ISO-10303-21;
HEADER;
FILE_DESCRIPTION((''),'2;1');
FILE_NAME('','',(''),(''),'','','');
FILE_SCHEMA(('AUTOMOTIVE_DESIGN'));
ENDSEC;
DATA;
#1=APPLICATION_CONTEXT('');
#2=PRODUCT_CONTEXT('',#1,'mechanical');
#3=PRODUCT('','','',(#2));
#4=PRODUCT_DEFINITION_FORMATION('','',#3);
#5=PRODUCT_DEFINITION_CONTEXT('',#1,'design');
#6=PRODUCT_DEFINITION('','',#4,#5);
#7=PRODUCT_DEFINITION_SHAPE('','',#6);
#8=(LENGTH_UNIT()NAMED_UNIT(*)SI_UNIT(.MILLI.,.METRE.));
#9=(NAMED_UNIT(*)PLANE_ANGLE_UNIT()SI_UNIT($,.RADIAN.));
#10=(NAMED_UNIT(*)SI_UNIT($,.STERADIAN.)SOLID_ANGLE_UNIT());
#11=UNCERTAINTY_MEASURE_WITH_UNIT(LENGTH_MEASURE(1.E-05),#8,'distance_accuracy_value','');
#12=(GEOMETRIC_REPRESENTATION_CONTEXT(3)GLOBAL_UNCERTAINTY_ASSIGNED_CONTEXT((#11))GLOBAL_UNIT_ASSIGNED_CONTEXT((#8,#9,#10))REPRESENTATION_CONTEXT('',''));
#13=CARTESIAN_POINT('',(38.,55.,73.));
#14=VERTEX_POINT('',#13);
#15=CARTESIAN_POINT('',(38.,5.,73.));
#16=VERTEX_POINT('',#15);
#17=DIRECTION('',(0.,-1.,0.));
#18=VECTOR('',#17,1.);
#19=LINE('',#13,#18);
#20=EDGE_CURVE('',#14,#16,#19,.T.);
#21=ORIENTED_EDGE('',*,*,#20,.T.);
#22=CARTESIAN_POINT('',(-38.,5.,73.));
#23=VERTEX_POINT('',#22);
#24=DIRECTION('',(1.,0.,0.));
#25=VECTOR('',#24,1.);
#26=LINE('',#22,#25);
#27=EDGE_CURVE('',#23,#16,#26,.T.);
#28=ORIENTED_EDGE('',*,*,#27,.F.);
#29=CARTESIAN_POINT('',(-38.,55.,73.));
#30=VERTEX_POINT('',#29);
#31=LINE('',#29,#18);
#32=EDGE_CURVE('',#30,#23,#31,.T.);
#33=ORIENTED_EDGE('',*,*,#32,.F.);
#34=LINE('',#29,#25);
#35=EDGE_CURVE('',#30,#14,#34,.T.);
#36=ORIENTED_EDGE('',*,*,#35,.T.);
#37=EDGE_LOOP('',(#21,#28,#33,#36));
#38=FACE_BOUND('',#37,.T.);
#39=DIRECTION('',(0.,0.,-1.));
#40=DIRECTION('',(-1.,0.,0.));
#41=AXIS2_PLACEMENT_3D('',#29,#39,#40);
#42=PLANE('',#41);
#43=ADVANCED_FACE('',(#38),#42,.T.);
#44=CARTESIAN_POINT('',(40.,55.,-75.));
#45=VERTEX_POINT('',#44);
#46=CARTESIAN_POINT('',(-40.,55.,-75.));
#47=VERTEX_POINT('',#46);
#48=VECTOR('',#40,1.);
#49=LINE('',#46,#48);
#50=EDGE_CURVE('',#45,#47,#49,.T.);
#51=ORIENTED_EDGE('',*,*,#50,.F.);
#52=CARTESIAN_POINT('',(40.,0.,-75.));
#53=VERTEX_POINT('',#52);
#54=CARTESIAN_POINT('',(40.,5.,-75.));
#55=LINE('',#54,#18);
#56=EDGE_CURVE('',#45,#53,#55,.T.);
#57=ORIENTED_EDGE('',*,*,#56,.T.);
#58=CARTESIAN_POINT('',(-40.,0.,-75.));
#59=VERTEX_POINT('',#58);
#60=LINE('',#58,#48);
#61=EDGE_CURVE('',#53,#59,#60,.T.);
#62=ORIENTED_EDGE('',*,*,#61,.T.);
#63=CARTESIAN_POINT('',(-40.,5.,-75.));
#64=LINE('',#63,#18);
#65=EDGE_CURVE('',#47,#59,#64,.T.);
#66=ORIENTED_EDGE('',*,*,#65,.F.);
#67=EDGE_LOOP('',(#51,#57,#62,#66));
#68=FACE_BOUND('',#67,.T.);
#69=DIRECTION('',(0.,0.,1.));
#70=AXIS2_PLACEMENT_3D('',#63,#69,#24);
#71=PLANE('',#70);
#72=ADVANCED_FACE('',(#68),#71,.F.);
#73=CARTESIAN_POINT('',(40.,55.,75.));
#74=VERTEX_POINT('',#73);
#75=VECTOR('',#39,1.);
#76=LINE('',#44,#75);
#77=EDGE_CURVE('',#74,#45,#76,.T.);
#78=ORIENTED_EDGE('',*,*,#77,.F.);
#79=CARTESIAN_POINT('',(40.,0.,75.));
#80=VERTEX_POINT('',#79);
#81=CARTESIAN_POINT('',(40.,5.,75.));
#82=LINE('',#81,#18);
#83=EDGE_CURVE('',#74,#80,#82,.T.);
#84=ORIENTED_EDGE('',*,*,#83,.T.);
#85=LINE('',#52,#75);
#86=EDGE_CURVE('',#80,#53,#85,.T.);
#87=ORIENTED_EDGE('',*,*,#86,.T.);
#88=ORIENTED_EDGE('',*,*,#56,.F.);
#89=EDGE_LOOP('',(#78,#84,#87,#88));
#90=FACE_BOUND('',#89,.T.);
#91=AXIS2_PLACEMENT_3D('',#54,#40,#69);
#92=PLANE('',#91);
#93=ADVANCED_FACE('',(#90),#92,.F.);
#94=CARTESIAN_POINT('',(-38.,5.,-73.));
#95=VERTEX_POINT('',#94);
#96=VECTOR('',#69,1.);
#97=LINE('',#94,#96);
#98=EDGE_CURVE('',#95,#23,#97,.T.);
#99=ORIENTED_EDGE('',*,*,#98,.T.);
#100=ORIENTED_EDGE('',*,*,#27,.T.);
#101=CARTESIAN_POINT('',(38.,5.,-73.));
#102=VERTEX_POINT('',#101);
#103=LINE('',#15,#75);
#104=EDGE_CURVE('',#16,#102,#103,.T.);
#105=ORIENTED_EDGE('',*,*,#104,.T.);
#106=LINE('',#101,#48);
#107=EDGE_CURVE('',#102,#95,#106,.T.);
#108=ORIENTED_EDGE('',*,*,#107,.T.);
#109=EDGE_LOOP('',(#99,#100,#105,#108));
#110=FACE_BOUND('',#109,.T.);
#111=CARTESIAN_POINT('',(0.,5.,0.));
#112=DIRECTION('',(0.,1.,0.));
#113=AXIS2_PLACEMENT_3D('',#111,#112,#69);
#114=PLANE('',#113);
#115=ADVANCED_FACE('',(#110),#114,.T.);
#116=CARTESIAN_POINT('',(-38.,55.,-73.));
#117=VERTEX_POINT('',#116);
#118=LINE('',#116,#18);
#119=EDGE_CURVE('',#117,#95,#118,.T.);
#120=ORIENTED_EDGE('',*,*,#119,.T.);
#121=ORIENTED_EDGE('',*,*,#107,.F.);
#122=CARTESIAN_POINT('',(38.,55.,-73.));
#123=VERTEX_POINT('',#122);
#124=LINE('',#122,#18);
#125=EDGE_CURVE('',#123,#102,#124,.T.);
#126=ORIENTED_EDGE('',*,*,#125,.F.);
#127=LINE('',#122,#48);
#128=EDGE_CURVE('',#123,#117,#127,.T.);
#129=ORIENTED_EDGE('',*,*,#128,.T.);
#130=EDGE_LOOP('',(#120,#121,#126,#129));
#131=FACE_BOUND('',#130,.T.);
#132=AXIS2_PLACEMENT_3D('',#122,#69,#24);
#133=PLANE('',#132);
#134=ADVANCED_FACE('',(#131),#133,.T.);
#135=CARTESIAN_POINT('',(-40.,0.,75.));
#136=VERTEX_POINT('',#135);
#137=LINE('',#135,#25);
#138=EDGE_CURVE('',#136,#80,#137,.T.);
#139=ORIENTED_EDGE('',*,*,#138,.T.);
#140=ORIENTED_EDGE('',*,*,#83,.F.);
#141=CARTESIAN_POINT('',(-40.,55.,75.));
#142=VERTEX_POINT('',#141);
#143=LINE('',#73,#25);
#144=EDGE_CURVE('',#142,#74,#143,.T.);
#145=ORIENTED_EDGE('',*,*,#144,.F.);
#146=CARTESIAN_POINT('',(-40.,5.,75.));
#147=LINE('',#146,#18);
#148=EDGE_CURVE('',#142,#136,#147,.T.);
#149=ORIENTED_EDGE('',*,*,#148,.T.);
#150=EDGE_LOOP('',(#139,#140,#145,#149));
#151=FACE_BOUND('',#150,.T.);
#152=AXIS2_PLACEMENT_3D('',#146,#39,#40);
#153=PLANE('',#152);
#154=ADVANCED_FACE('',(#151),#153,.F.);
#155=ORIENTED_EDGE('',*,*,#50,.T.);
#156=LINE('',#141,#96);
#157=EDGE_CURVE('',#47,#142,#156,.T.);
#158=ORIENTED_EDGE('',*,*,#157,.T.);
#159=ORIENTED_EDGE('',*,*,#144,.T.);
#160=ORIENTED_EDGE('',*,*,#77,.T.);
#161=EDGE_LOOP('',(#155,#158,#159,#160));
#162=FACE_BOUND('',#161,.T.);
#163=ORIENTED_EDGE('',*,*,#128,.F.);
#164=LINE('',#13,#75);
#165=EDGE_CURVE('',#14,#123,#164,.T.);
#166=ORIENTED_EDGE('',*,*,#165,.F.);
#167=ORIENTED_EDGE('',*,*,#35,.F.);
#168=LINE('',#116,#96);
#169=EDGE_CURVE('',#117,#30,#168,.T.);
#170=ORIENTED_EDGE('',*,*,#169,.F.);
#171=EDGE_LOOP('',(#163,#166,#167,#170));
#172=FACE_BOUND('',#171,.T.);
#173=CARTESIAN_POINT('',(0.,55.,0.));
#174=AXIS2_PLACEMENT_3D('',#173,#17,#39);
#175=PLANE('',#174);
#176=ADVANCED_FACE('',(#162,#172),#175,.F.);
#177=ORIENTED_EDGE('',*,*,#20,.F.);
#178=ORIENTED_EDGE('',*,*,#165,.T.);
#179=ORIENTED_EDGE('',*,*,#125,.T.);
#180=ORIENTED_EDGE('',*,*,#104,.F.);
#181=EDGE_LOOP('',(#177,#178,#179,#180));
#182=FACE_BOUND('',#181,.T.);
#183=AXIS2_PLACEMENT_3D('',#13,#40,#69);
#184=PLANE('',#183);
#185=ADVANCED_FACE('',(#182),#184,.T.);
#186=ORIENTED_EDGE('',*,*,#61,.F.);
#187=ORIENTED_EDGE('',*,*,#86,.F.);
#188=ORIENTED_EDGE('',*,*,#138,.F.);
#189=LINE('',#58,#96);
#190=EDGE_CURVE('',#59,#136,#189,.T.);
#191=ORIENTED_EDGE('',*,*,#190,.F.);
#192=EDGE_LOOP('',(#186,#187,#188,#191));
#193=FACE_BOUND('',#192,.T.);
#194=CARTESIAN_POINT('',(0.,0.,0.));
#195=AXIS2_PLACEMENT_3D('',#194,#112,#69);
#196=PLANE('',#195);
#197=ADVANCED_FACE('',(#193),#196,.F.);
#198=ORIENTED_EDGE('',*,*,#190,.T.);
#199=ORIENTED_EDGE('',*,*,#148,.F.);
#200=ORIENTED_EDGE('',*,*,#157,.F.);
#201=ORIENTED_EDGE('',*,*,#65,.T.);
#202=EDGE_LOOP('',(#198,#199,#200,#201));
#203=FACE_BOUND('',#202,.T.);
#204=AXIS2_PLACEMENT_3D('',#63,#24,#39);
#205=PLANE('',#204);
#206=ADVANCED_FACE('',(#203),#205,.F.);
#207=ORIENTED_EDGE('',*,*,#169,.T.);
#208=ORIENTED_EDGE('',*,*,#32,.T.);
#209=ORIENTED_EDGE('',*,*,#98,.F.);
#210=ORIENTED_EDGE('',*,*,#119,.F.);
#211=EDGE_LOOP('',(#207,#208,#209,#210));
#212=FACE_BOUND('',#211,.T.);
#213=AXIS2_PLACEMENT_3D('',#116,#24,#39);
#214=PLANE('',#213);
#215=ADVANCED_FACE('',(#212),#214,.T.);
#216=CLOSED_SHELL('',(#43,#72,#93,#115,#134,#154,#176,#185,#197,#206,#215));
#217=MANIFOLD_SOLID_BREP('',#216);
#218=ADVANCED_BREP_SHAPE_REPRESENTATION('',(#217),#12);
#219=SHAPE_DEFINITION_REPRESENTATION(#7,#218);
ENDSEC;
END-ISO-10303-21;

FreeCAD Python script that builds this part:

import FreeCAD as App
import Part
import Sketcher
from FreeCAD import Vector
Q = App.Units.Quantity


def add_polygon(sketch, points):
    """Adds a closed chain of lines whose ends are joined by coincident constraints."""
    first, n = sketch.GeometryCount, len(points)
    for a, b in zip(points, points[1:] + points[:1]):
        sketch.addGeometry(Part.LineSegment(App.Vector(*a, 0), App.Vector(*b, 0)), False)
    for i in range(n):
        sketch.addConstraint(Sketcher.Constraint("Coincident", first + i, 2, first + (i + 1) % n, 1))

doc = App.newDocument("Part")
params = doc.addObject("Spreadsheet::Sheet", "Params")
for row, (alias, value) in enumerate([
    ("sketch1_width", "80 mm"),
    ("sketch1_height", "150 mm"),
    ("pad1_length", "5 mm"),
    ("sketch2_width", "80 mm"),
    ("sketch2_width2", "76 mm"),
    ("sketch2_height", "150 mm"),
    ("sketch2_height2", "146 mm"),
    ("pad2_length", "50 mm"),
], start=1):
    params.set(f"A{row}", alias)
    params.set(f"B{row}", "=" + value)
    params.setAlias(f"B{row}", alias)

body = doc.addObject("PartDesign::Body", "Body")

sketch1 = doc.addObject("Sketcher::SketchObject", "Sketch")
body.addObject(sketch1)
sketch1.AttachmentSupport = (doc.XZ_Plane, [""])
sketch1.MapMode = "FlatFace"
add_polygon(sketch1, [(-40, -75), (-40, 75), (40, 75), (40, -75)])
sketch1.addConstraint([
    Sketcher.Constraint("Vertical", 0),
    Sketcher.Constraint("Horizontal", 1),
    Sketcher.Constraint("Vertical", 2),
    Sketcher.Constraint("Horizontal", 3),
    Sketcher.Constraint("Symmetric", 0, 2, 2, 2, -1, 1),
    Sketcher.Constraint("DistanceX", 1, 1, 1, 2, Q("80 mm")),
    Sketcher.Constraint("DistanceY", 0, 1, 0, 2, Q("150 mm")),
])
sketch1.setExpression("Constraints[9]", "Params.sketch1_width")
sketch1.setExpression("Constraints[10]", "Params.sketch1_height")
pad1 = doc.addObject("PartDesign::Pad", "Pad")
body.addObject(pad1)
pad1.Profile = sketch1
pad1.setExpression("Length", "Params.pad1_length")
pad1.Reversed = True

sketch2 = doc.addObject("Sketcher::SketchObject", "Sketch001")
body.addObject(sketch2)
sketch2.AttachmentSupport = (doc.XZ_Plane, [""])
sketch2.MapMode = "FlatFace"
sketch2.AttachmentOffset = App.Placement(Vector(0, 0, -5), App.Rotation())
add_polygon(sketch2, [(-40, -75), (-40, 75), (40, 75), (40, -75)])
add_polygon(sketch2, [(38, 73), (-38, 73), (-38, -73), (38, -73)])
sketch2.addConstraint([
    Sketcher.Constraint("Vertical", 0),
    Sketcher.Constraint("Horizontal", 1),
    Sketcher.Constraint("Vertical", 2),
    Sketcher.Constraint("Horizontal", 3),
    Sketcher.Constraint("Horizontal", 4),
    Sketcher.Constraint("Vertical", 5),
    Sketcher.Constraint("Horizontal", 6),
    Sketcher.Constraint("Vertical", 7),
    Sketcher.Constraint("Symmetric", 0, 2, 2, 2, -1, 1),
    Sketcher.Constraint("Symmetric", 4, 2, 6, 2, -1, 1),
    Sketcher.Constraint("DistanceX", 1, 1, 1, 2, Q("80 mm")),
    Sketcher.Constraint("DistanceX", 4, 2, 4, 1, Q("76 mm")),
    Sketcher.Constraint("DistanceY", 0, 1, 0, 2, Q("150 mm")),
    Sketcher.Constraint("DistanceY", 5, 2, 5, 1, Q("146 mm")),
])
sketch2.setExpression("Constraints[18]", "Params.sketch2_width")
sketch2.setExpression("Constraints[19]", "Params.sketch2_width2")
sketch2.setExpression("Constraints[20]", "Params.sketch2_height")
sketch2.setExpression("Constraints[21]", "Params.sketch2_height2")
pad2 = doc.addObject("PartDesign::Pad", "Pad001")
body.addObject(pad2)
pad2.Profile = sketch2
pad2.setExpression("Length", "Params.pad2_length")
pad2.Reversed = True

doc.recompute()
